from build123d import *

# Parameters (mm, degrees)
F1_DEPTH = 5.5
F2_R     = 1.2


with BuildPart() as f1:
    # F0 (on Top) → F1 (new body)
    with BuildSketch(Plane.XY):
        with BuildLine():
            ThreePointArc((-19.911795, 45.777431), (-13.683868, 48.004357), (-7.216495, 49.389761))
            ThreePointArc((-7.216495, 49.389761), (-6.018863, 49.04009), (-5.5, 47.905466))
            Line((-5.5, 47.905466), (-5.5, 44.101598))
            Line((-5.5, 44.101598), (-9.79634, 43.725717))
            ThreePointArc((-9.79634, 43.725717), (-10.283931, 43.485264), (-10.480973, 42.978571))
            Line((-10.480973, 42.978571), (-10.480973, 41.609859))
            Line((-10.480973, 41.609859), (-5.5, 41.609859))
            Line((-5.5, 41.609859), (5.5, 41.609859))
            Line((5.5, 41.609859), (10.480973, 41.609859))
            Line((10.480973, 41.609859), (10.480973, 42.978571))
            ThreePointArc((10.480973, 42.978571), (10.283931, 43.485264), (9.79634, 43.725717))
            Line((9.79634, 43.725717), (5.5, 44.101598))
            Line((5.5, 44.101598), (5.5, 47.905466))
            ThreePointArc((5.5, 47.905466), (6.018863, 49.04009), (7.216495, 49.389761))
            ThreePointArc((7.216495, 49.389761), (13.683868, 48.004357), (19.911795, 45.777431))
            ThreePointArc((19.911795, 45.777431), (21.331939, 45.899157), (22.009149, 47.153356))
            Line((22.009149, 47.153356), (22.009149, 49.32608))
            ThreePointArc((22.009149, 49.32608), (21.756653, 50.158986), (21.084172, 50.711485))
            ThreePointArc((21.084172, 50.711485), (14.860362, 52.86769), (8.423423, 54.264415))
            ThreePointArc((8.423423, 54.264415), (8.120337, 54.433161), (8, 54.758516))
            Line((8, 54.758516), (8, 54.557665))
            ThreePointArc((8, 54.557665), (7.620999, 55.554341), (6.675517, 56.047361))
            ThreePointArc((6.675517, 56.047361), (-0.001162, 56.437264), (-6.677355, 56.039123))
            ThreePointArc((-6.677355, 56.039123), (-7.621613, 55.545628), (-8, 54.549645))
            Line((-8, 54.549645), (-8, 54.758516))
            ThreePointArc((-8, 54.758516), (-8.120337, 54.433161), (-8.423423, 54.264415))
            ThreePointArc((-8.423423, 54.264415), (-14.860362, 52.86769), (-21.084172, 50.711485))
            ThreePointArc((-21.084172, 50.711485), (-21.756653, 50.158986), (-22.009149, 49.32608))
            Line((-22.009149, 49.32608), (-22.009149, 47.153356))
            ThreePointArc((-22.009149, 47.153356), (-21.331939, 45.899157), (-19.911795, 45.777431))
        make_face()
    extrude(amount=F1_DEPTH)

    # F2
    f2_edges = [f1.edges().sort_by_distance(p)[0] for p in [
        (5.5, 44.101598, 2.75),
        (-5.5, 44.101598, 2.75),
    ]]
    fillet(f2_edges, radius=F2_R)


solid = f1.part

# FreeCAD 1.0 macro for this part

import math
import FreeCAD as App
import Part
import Sketcher
from FreeCAD import Vector
Q = App.Units.Quantity


def edges_at(feature, points):
    """Names of the edges that pass closest to the given points."""
    edges = feature.Shape.Edges
    near = lambda p: min(range(len(edges)), key=lambda i: edges[i].distToShape(Part.Vertex(*p))[0])
    return sorted({f"Edge{near(p) + 1}" for p in points})

doc = App.newDocument("Part")
body = doc.addObject("PartDesign::Body", "Body")

# Sketch on XY plane
sketch1 = body.newObject("Sketcher::SketchObject", "Sketch")
sketch1.AttachmentSupport = (doc.getObject("XY_Plane"), [""])
sketch1.MapMode = "FlatFace"
sketch1.addGeometry([
    Part.ArcOfCircle(Part.Circle(Vector(0.000008, -0.086741, 0), Vector(0, 0, 1), 50.000021), math.radians(98.298482), math.radians(113.467941)),  # 0
    Part.ArcOfCircle(Part.Circle(Vector(-7, 47.905467, 0), Vector(0, 0, 1), 1.5), math.radians(-0.000025), math.radians(98.298486)),  # 1
    Part.LineSegment(Vector(-5.5, 47.905466, 0), Vector(-5.5, 44.101598, 0)),  # 2
    Part.LineSegment(Vector(-5.5, 44.101598, 0), Vector(-9.79634, 43.725717, 0)),  # 3
    Part.ArcOfCircle(Part.Circle(Vector(-9.730974, 42.978572, 0), Vector(0, 0, 1), 0.749999), math.radians(94.999969), math.radians(180.000046)),  # 4
    Part.LineSegment(Vector(-10.480973, 42.978571, 0), Vector(-10.480973, 41.609859, 0)),  # 5
    Part.LineSegment(Vector(-10.480973, 41.609859, 0), Vector(10.480973, 41.609859, 0)),  # 6
    Part.LineSegment(Vector(10.480973, 41.609859, 0), Vector(10.480973, 42.978571, 0)),  # 7
    Part.ArcOfCircle(Part.Circle(Vector(9.730974, 42.978572, 0), Vector(0, 0, 1), 0.749999), math.radians(-0.000046), math.radians(85.000031)),  # 8
    Part.LineSegment(Vector(9.79634, 43.725717, 0), Vector(5.5, 44.101598, 0)),  # 9
    Part.LineSegment(Vector(5.5, 44.101598, 0), Vector(5.5, 47.905466, 0)),  # 10
    Part.ArcOfCircle(Part.Circle(Vector(7, 47.905467, 0), Vector(0, 0, 1), 1.5), math.radians(81.701514), math.radians(180.000025)),  # 11
    Part.ArcOfCircle(Part.Circle(Vector(-0.000008, -0.086741, 0), Vector(0, 0, 1), 50.000021), math.radians(66.532059), math.radians(81.701518)),  # 12
    Part.ArcOfCircle(Part.Circle(Vector(20.509148, 47.153357, 0), Vector(0, 0, 1), 1.500001), math.radians(-113.467883), math.radians(-0.000046)),  # 13
    Part.LineSegment(Vector(22.009149, 47.153356, 0), Vector(22.009149, 49.32608, 0)),  # 14
    Part.ArcOfCircle(Part.Circle(Vector(20.509148, 49.326079, 0), Vector(0, 0, 1), 1.500001), math.radians(0.00004), math.radians(67.45872)),  # 15
    Part.ArcOfCircle(Part.Circle(Vector(-0.000013, -0.086767, 0), Vector(0, 0, 1), 55.000048), math.radians(67.45875), math.radians(81.190294)),  # 16
    Part.ArcOfCircle(Part.Circle(Vector(8.5, 54.758516, 0), Vector(0, 0, 1), 0.5), math.radians(-179.999974), math.radians(-98.809757)),  # 17
    Part.LineSegment(Vector(8, 54.758516, 0), Vector(8, 54.557665, 0)),  # 18
    Part.ArcOfCircle(Part.Circle(Vector(6.500002, 54.557666, 0), Vector(0, 0, 1), 1.499998), math.radians(-0.000057), math.radians(83.280402)),  # 19
    Part.ArcOfCircle(Part.Circle(Vector(0.033856, -0.323591, 0), Vector(0, 0, 1), 56.760866), math.radians(83.280355), math.radians(96.790342)),  # 20
    Part.ArcOfCircle(Part.Circle(Vector(-6.499998, 54.549643, 0), Vector(0, 0, 1), 1.500002), math.radians(96.790407), math.radians(179.999933)),  # 21
    Part.LineSegment(Vector(-8, 54.549645, 0), Vector(-8, 54.758516, 0)),  # 22
    Part.ArcOfCircle(Part.Circle(Vector(-8.5, 54.758516, 0), Vector(0, 0, 1), 0.5), math.radians(-81.190243), math.radians(-0.000026)),  # 23
    Part.ArcOfCircle(Part.Circle(Vector(0.000013, -0.086767, 0), Vector(0, 0, 1), 55.000048), math.radians(98.809706), math.radians(112.54125)),  # 24
    Part.ArcOfCircle(Part.Circle(Vector(-20.509148, 49.326079, 0), Vector(0, 0, 1), 1.500001), math.radians(112.54128), math.radians(179.99996)),  # 25
    Part.LineSegment(Vector(-22.009149, 49.32608, 0), Vector(-22.009149, 47.153356, 0)),  # 26
    Part.ArcOfCircle(Part.Circle(Vector(-20.509148, 47.153357, 0), Vector(0, 0, 1), 1.500001), math.radians(-179.999954), math.radians(-66.532117)),  # 27
], False)
sketch1.addConstraint([
    Sketcher.Constraint("Tangent", 0, 1, 1, 2),
    Sketcher.Constraint("Tangent", 1, 1, 2, 1),
    Sketcher.Constraint("Coincident", 2, 2, 3, 1),
    Sketcher.Constraint("Tangent", 3, 2, 4, 1),
    Sketcher.Constraint("Tangent", 4, 2, 5, 1),
    Sketcher.Constraint("Coincident", 5, 2, 6, 1),
    Sketcher.Constraint("Coincident", 6, 2, 7, 1),
    Sketcher.Constraint("Tangent", 7, 2, 8, 1),
    Sketcher.Constraint("Tangent", 8, 2, 9, 1),
    Sketcher.Constraint("Coincident", 9, 2, 10, 1),
    Sketcher.Constraint("Tangent", 10, 2, 11, 2),
    Sketcher.Constraint("Tangent", 11, 1, 12, 2),
    Sketcher.Constraint("Tangent", 12, 1, 13, 1),
    Sketcher.Constraint("Tangent", 13, 2, 14, 1),
    Sketcher.Constraint("Tangent", 14, 2, 15, 1),
    Sketcher.Constraint("Tangent", 15, 2, 16, 1),
    Sketcher.Constraint("Tangent", 16, 2, 17, 2),
    Sketcher.Constraint("Tangent", 17, 1, 18, 1),
    Sketcher.Constraint("Tangent", 18, 2, 19, 1),
    Sketcher.Constraint("Tangent", 19, 2, 20, 1),
    Sketcher.Constraint("Tangent", 20, 2, 21, 1),
    Sketcher.Constraint("Tangent", 21, 2, 22, 1),
    Sketcher.Constraint("Tangent", 22, 2, 23, 2),
    Sketcher.Constraint("Tangent", 23, 1, 24, 1),
    Sketcher.Constraint("Tangent", 24, 2, 25, 1),
    Sketcher.Constraint("Tangent", 25, 2, 26, 1),
    Sketcher.Constraint("Tangent", 26, 2, 27, 1),
    Sketcher.Constraint("Tangent", 27, 2, 0, 2),
    Sketcher.Constraint("Vertical", 2),
    Sketcher.Constraint("Vertical", 5),
    Sketcher.Constraint("Horizontal", 6),
    Sketcher.Constraint("Vertical", 7),
    Sketcher.Constraint("Vertical", 10),
    Sketcher.Constraint("Vertical", 14),
    Sketcher.Constraint("Vertical", 18),
    Sketcher.Constraint("Vertical", 22),
    Sketcher.Constraint("Vertical", 26),
    Sketcher.Constraint("Equal", 4, 8),
    Sketcher.Constraint("Equal", 1, 11),
    Sketcher.Constraint("Equal", 0, 12),
    Sketcher.Constraint("Equal", 11, 13),
    Sketcher.Constraint("Equal", 13, 15),
    Sketcher.Constraint("Equal", 11, 19),
    Sketcher.Constraint("Equal", 15, 21),
    Sketcher.Constraint("Equal", 17, 23),
    Sketcher.Constraint("Equal", 16, 24),
    Sketcher.Constraint("Equal", 21, 25),
    Sketcher.Constraint("Equal", 25, 27),
    Sketcher.Constraint("Symmetric", 4, 3, 8, 3, -2),
    Sketcher.Constraint("Symmetric", 1, 3, 11, 3, -2),
    Sketcher.Constraint("Symmetric", 17, 3, 23, 3, -2),
    Sketcher.Constraint("Symmetric", 15, 3, 25, 3, -2),
    Sketcher.Constraint("Horizontal", 0, 3, 12, 3),
    Sketcher.Constraint("Horizontal", 3, 2, 8, 2),
    Sketcher.Constraint("Radius", 1, 1.5),
    Sketcher.Constraint("Radius", 17, 0.5),
    Sketcher.Constraint("Angle", 3, Q("-175.000001 deg")),
    Sketcher.Constraint("Radius", 4, 0.749999),
    Sketcher.Constraint("DistanceX", 1, 3, -1, 1, 7.0),
    Sketcher.Constraint("DistanceX", -1, 1, 17, 1, 8.0),
    Sketcher.Constraint("Radius", 0, 50.000021),
    Sketcher.Constraint("Radius", 16, 55.000048),
    Sketcher.Constraint("Radius", 20, 56.760866),
    Sketcher.Constraint("DistanceY", 18, 2, 18, 1, 0.200851),
    Sketcher.Constraint("DistanceY", 22, 1, 22, 2, 0.208871),
    Sketcher.Constraint("DistanceY", -1, 1, 2, 2, 44.101598),
    Sketcher.Constraint("DistanceY", 11, 3, 19, 3, 6.6522),
    Sketcher.Constraint("DistanceY", 6, 2, 13, 3, 5.543498),
    Sketcher.Constraint("DistanceY", 8, 2, 17, 3, 11.032799),
    Sketcher.Constraint("DistanceX", 24, 2, 4, 2, 10.603199),
    Sketcher.Constraint("Distance", 3, 4.312751),
    Sketcher.Constraint("DistanceY", 5, 2, 5, 1, 1.368712),
    Sketcher.Constraint("DistanceY", 14, 1, 14, 2, 2.172724),
])
pad1 = body.newObject("PartDesign::Pad", "Pad")
pad1.Profile = sketch1
pad1.Length = 5.5
doc.recompute()

fillet = body.newObject("PartDesign::Fillet", "Fillet")
fillet.Base = (pad1, edges_at(pad1, [(5.5, 44.102, 2.75), (-5.5, 44.102, 2.75)]))
fillet.Radius = 1.2

doc.recompute()
